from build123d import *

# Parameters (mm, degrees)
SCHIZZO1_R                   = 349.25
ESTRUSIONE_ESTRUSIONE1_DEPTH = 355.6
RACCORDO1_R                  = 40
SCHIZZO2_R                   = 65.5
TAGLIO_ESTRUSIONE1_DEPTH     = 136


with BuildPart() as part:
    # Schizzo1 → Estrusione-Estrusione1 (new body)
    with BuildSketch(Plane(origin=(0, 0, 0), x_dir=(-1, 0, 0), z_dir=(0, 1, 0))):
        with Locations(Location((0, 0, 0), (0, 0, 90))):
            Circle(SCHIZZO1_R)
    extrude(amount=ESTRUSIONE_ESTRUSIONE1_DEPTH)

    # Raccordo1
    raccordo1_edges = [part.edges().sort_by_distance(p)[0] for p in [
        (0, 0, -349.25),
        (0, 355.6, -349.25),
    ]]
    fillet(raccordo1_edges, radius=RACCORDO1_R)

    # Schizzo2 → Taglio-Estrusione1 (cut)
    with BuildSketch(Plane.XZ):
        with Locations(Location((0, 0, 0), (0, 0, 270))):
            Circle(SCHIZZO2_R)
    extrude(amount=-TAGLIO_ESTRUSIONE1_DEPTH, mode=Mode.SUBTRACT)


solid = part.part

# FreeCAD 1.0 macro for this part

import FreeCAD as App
import Part
import Sketcher


def edges_at(feature, points):
    """Names of the edges that pass closest to the given points."""
    edges = feature.Shape.Edges
    near = lambda p: min(range(len(edges)), key=lambda i: edges[i].distToShape(Part.Vertex(*p))[0])
    return sorted({f"Edge{near(p) + 1}" for p in points})

doc = App.newDocument("Part")
params = doc.addObject("Spreadsheet::Sheet", "Params")
for row, (alias, value) in enumerate([
    ("sketch1_diameter", "698.5 mm"),
    ("pad1_length", "355.6 mm"),
    ("fillet_radius", "40 mm"),
    ("sketch2_diameter", "131 mm"),
    ("pocket1_length", "136 mm"),
], start=1):
    params.set(f"A{row}", alias)
    params.set(f"B{row}", "=" + value)
    params.setAlias(f"B{row}", alias)

body = doc.addObject("PartDesign::Body", "Body")

# Sketch on XZ plane
sketch1 = body.newObject("Sketcher::SketchObject", "Sketch")
sketch1.AttachmentSupport = (doc.getObject("XZ_Plane"), [""])
sketch1.MapMode = "FlatFace"
sketch1.addGeometry(Part.Circle(App.Vector(0, 0, 0), App.Vector(0, 0, 1), 349), False)
sketch1.addConstraint([
    Sketcher.Constraint("Coincident", 0, 3, -1, 1),
    Sketcher.Constraint("Diameter", 0, 698.5),
])
sketch1.setExpression("Constraints[1]", "Params.sketch1_diameter")
pad1 = body.newObject("PartDesign::Pad", "Pad")
pad1.Profile = sketch1
pad1.setExpression("Length", "Params.pad1_length")
pad1.Reversed = True
doc.recompute()

fillet = body.newObject("PartDesign::Fillet", "Fillet")
fillet.Base = (pad1, edges_at(pad1, [(0, 0, -349.25), (0, 355.6, -349.25)]))
fillet.setExpression("Radius", "Params.fillet_radius")

# Sketch on XZ plane
sketch2 = body.newObject("Sketcher::SketchObject", "Sketch001")
sketch2.AttachmentSupport = (doc.getObject("XZ_Plane"), [""])
sketch2.MapMode = "FlatFace"
sketch2.addGeometry(Part.Circle(App.Vector(0, 0, 0), App.Vector(0, 0, 1), 66), False)
sketch2.addConstraint([
    Sketcher.Constraint("Coincident", 0, 3, -1, 1),
    Sketcher.Constraint("Diameter", 0, 131.0),
])
sketch2.setExpression("Constraints[1]", "Params.sketch2_diameter")
pocket1 = body.newObject("PartDesign::Pocket", "Pocket")
pocket1.Profile = sketch2
pocket1.setExpression("Length", "Params.pocket1_length")

doc.recompute()
